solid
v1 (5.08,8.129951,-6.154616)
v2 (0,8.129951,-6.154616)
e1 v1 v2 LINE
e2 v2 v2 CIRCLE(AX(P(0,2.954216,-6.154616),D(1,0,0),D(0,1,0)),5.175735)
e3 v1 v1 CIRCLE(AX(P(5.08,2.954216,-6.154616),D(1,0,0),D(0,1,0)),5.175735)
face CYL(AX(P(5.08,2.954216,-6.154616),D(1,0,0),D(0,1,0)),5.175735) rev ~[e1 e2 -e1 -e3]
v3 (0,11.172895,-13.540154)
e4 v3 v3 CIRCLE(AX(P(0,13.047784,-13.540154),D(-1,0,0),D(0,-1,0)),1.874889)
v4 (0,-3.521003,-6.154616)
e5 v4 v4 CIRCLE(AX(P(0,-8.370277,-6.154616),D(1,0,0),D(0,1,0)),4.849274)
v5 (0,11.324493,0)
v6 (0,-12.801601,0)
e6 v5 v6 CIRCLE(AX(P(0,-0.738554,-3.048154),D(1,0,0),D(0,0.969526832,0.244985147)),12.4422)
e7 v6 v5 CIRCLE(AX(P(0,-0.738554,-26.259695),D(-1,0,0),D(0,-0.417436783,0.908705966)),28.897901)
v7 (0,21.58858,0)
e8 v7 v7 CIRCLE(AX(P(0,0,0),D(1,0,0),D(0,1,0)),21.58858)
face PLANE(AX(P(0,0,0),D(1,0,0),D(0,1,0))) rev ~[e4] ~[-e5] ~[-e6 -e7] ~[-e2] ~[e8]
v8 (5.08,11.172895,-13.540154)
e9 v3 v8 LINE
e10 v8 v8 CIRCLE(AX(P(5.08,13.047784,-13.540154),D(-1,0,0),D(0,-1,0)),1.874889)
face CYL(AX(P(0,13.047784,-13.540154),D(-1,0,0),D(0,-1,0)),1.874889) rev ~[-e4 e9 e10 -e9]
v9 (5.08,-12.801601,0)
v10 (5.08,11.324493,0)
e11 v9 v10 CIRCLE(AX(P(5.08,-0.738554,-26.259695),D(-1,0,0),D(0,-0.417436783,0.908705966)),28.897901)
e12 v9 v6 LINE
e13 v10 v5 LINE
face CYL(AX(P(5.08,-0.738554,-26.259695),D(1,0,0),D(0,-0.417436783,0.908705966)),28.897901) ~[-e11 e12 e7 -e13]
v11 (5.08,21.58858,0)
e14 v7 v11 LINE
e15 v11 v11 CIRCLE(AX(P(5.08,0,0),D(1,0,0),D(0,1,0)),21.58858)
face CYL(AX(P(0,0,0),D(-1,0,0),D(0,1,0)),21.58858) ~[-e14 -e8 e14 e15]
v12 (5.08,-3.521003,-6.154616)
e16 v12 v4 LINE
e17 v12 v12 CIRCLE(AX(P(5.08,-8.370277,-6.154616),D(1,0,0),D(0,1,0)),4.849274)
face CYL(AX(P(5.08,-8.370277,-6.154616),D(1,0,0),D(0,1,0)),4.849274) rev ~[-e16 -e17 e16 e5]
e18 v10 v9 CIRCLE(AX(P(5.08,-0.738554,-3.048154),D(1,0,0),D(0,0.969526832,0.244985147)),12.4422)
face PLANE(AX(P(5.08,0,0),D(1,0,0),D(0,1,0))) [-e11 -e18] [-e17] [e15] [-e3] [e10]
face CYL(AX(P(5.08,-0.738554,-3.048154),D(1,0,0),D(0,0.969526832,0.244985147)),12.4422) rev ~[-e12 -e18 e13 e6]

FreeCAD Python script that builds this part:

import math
import FreeCAD as App
import Part
import Sketcher

V = App.Vector
Q = App.Units.Quantity

doc = App.newDocument("Part")
params = doc.addObject("Spreadsheet::Sheet", "Params")
for row, (alias, value) in enumerate([
    ("pad1_length", "0.2 in"),
    ("pocket1_length", "0.2 in"),
    ("pocket2_length", "0.2 in"),
], start=1):
    params.set(f"A{row}", alias)
    params.set(f"B{row}", "=" + value)
    params.setAlias(f"B{row}", alias)

body = doc.addObject("PartDesign::Body", "Body")

# Sketch on YZ plane
sketch1 = body.newObject("Sketcher::SketchObject", "Sketch")
sketch1.AttachmentSupport = (doc.getObject("YZ_Plane"), [""])
sketch1.MapMode = "FlatFace"
sketch1.addGeometry(Part.Circle(V(0, 0, 0), V(0, 0, 1), 22), False)
sketch1.addConstraint([
    Sketcher.Constraint("Coincident", 0, 3, -1, 1),
    Sketcher.Constraint("Diameter", 0, Q("43.17716 mm")),
])
pad1 = body.newObject("PartDesign::Pad", "Pad")
pad1.Profile = sketch1
pad1.setExpression("Length", "Params.pad1_length")

# Sketch on YZ plane
sketch2 = body.newObject("Sketcher::SketchObject", "Sketch001")
sketch2.AttachmentSupport = (doc.getObject("YZ_Plane"), [""])
sketch2.MapMode = "FlatFace"
sketch2.AttachmentOffset = App.Placement(V(0, 0, 0.2 * 25.4), App.Rotation())
sketch2.addGeometry([
    Part.ArcOfCircle(Part.Circle(V(-0.7, -26.3, 0), V(0, 0, 1), 28.9), math.radians(65), math.radians(115)),
    Part.ArcOfCircle(Part.Circle(V(-0.7, -3, 0), V(0, 0, 1), 12.4), math.radians(14), math.radians(166)),
    Part.Circle(V(-8.4, -6.2, 0), V(0, 0, 1), 4.8),
    Part.Circle(V(3, -6.2, 0), V(0, 0, 1), 5.2),
], False)
sketch2.addConstraint([
    Sketcher.Constraint("Coincident", 0, 1, 1, 1),
    Sketcher.Constraint("Coincident", 1, 2, 0, 2),
    Sketcher.Constraint("PointOnObject", 0, 1, -1),
    Sketcher.Constraint("PointOnObject", 1, 2, -1),
    Sketcher.Constraint("Horizontal", 2, 3, 3, 3),
    Sketcher.Constraint("Radius", 0, Q("28.897901 mm")),
    Sketcher.Constraint("Radius", 1, Q("12.4422 mm")),
    Sketcher.Constraint("Diameter", 2, Q("9.698548 mm")),
    Sketcher.Constraint("Diameter", 3, Q("10.35147 mm")),
    Sketcher.Constraint("DistanceX", 1, 2, -1, 1, Q("0.504 in")),
    Sketcher.Constraint("DistanceY", 0, 3, 1, 3, Q("23.211541 mm")),
    Sketcher.Constraint("DistanceY", 2, 3, 1, 3, Q("3.106462 mm")),
    Sketcher.Constraint("DistanceX", 1, 3, 3, 3, Q("3.69277 mm")),
    Sketcher.Constraint("DistanceX", 2, 3, 0, 1, Q("19.69477 mm")),
])
pocket1 = body.newObject("PartDesign::Pocket", "Pocket")
pocket1.Profile = sketch2
pocket1.setExpression("Length", "Params.pocket1_length")

# Sketch on YZ plane
sketch3 = body.newObject("Sketcher::SketchObject", "Sketch002")
sketch3.AttachmentSupport = (doc.getObject("YZ_Plane"), [""])
sketch3.MapMode = "FlatFace"
sketch3.addGeometry(Part.Circle(V(13, -13.5, 0), V(0, 0, 1), 1.9), False)
sketch3.addConstraint([
    Sketcher.Constraint("Diameter", 0, Q("3.749778 mm")),
    Sketcher.Constraint("DistanceX", -1, 1, 0, 3, Q("13.047784 mm")),
    Sketcher.Constraint("DistanceY", 0, 3, -1, 1, Q("13.540154 mm")),
])
pocket2 = body.newObject("PartDesign::Pocket", "Pocket001")
pocket2.Profile = sketch3
pocket2.setExpression("Length", "Params.pocket2_length")
pocket2.Reversed = True

doc.recompute()
